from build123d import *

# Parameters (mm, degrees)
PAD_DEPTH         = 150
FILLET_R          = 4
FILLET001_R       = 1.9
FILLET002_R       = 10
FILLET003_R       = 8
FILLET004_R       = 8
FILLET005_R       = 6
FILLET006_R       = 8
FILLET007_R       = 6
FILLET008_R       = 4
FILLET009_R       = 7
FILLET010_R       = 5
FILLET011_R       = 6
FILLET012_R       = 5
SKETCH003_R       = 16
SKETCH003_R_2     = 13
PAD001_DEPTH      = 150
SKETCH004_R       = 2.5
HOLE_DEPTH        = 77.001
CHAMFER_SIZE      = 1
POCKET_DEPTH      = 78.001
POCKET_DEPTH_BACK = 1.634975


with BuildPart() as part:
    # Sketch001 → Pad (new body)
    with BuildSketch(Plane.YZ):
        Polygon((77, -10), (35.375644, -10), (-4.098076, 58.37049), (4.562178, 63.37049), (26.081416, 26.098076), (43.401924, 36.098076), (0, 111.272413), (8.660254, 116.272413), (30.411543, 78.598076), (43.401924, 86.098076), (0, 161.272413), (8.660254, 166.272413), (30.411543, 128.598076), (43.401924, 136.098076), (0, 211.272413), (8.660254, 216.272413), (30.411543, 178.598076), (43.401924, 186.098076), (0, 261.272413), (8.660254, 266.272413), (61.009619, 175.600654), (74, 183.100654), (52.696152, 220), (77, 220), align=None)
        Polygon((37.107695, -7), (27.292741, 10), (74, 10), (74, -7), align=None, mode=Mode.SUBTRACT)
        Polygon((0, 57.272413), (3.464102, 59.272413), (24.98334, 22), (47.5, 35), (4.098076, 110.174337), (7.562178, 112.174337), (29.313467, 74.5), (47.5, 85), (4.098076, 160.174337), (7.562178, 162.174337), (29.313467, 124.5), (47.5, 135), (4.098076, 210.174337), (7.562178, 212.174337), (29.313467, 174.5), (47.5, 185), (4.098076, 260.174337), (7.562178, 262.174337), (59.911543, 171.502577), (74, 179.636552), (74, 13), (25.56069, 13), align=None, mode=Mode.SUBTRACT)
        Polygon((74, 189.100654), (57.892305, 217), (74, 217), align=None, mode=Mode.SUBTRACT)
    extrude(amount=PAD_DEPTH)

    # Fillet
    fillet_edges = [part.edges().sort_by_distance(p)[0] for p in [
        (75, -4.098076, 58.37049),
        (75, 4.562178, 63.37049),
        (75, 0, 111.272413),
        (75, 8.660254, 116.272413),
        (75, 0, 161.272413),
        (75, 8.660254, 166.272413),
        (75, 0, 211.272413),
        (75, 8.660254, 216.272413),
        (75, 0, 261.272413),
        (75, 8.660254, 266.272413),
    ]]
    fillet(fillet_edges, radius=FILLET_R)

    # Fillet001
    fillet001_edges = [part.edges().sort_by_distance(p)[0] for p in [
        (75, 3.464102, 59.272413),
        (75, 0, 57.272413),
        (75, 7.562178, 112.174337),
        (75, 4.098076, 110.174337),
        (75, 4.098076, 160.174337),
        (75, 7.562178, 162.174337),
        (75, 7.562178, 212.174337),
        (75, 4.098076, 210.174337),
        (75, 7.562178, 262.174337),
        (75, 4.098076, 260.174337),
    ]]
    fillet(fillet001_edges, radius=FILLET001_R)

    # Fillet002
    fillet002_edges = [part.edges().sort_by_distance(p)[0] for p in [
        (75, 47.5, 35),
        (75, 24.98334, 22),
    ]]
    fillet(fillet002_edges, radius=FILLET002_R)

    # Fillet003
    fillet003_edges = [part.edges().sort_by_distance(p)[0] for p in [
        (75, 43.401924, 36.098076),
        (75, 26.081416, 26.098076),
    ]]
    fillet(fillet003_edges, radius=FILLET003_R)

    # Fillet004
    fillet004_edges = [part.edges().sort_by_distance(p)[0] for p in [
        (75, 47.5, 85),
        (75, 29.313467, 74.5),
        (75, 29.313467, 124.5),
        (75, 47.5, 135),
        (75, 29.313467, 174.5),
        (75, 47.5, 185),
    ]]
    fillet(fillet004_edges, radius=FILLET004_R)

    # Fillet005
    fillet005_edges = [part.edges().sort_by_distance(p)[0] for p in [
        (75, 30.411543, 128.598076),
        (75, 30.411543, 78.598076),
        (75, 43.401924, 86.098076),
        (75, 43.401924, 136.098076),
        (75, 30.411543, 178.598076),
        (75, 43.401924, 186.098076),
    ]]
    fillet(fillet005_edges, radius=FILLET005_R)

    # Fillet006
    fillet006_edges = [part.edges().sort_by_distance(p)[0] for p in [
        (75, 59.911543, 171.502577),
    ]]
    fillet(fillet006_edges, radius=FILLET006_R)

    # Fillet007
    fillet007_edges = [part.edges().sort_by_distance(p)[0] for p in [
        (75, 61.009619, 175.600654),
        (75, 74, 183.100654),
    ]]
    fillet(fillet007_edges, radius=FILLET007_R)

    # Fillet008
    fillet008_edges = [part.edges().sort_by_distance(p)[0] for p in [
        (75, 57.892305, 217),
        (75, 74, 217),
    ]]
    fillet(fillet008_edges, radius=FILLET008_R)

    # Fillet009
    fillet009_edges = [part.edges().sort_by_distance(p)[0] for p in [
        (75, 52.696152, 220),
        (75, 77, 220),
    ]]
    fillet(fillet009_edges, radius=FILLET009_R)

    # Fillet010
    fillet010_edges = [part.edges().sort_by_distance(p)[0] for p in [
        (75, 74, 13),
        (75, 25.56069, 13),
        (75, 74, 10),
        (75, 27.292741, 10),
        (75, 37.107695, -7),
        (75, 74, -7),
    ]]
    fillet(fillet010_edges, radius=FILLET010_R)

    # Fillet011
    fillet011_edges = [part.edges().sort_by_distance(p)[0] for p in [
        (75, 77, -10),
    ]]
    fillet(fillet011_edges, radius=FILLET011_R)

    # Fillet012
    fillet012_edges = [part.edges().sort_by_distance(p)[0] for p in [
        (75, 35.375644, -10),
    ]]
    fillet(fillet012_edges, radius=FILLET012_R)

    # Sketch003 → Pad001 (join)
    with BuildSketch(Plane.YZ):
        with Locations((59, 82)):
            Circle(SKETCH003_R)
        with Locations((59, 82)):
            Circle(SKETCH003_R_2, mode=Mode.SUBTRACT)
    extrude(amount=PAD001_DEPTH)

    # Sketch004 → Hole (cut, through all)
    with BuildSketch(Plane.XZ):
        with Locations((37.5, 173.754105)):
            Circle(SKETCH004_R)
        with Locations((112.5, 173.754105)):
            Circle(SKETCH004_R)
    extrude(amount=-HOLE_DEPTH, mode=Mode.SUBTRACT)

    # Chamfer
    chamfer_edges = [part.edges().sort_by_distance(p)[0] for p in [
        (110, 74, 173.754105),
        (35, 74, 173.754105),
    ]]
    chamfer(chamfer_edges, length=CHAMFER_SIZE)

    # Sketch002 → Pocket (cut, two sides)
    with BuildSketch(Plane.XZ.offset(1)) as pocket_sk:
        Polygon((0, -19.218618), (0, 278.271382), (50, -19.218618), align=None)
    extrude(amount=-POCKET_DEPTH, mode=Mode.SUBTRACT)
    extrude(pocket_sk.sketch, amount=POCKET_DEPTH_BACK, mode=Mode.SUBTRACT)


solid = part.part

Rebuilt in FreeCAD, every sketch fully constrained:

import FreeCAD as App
import Part
import Sketcher

V = App.Vector
Q = App.Units.Quantity


def edges_at(feature, points):
    """Names of the edges that pass closest to the given points."""
    edges = feature.Shape.Edges
    near = lambda p: min(range(len(edges)), key=lambda i: edges[i].distToShape(Part.Vertex(*p))[0])
    return sorted({f"Edge{near(p) + 1}" for p in points})

doc = App.newDocument("Part")
params = doc.addObject("Spreadsheet::Sheet", "Params")
for row, (alias, value) in enumerate([
    ("sketch1_height", "230 mm"),
    ("sketch1_height2", "17 mm"),
    ("sketch1_length", "15 mm"),
    ("sketch1_length2", "10 mm"),
    ("sketch1_length3", "20 mm"),
    ("pad1_length", "150 mm"),
    ("fillet_radius", "4 mm"),
    ("fillet2_radius", "1.9 mm"),
    ("fillet3_radius", "10 mm"),
    ("fillet4_radius", "8 mm"),
    ("fillet5_radius", "8 mm"),
    ("fillet6_radius", "6 mm"),
    ("fillet7_radius", "8 mm"),
    ("fillet8_radius", "6 mm"),
    ("fillet9_radius", "4 mm"),
    ("fillet10_radius", "7 mm"),
    ("fillet11_radius", "5 mm"),
    ("fillet12_radius", "6 mm"),
    ("fillet13_radius", "5 mm"),
    ("sketch2_diameter", "32 mm"),
    ("sketch2_diameter2", "26 mm"),
    ("pad2_length", "150 mm"),
    ("sketch3_diameter", "5 mm"),
    ("chamfer_size", "1 mm"),
    ("sketch4_width", "50 mm"),
    ("sketch4_height", "297.49 mm"),
], start=1):
    params.set(f"A{row}", alias)
    params.set(f"B{row}", "=" + value)
    params.setAlias(f"B{row}", alias)

body = doc.addObject("PartDesign::Body", "Body")

sketch1 = doc.addObject("Sketcher::SketchObject", "Sketch")
body.addObject(sketch1)
sketch1.AttachmentSupport = (doc.YZ_Plane, [""])
sketch1.MapMode = "FlatFace"
sketch1.addGeometry([
    Part.LineSegment(V(35.375644, -10, 0), V(77, -10, 0)),
    Part.LineSegment(V(77, -10, 0), V(77, 220, 0)),
    Part.LineSegment(V(77, 220, 0), V(52.696152, 220, 0)),
    Part.LineSegment(V(52.696152, 220, 0), V(74, 183.100654, 0)),
    Part.LineSegment(V(74, 183.100654, 0), V(61.009619, 175.600654, 0)),
    Part.LineSegment(V(61.009619, 175.600654, 0), V(8.660254, 266.272413, 0)),
    Part.LineSegment(V(8.660254, 266.272413, 0), V(0, 261.272413, 0)),
    Part.LineSegment(V(0, 261.272413, 0), V(43.401924, 186.098076, 0)),
    Part.LineSegment(V(43.401924, 186.098076, 0), V(30.411543, 178.598076, 0)),
    Part.LineSegment(V(30.411543, 178.598076, 0), V(8.660254, 216.272413, 0)),
    Part.LineSegment(V(8.660254, 216.272413, 0), V(0, 211.272413, 0)),
    Part.LineSegment(V(0, 211.272413, 0), V(43.401924, 136.098076, 0)),
    Part.LineSegment(V(43.401924, 136.098076, 0), V(30.411543, 128.598076, 0)),
    Part.LineSegment(V(30.411543, 128.598076, 0), V(8.660254, 166.272413, 0)),
    Part.LineSegment(V(8.660254, 166.272413, 0), V(0, 161.272413, 0)),
    Part.LineSegment(V(0, 161.272413, 0), V(43.401924, 86.098076, 0)),
    Part.LineSegment(V(43.401924, 86.098076, 0), V(30.411543, 78.598076, 0)),
    Part.LineSegment(V(30.411543, 78.598076, 0), V(8.660254, 116.272413, 0)),
    Part.LineSegment(V(8.660254, 116.272413, 0), V(0, 111.272413, 0)),
    Part.LineSegment(V(0, 111.272413, 0), V(43.401924, 36.098076, 0)),
    Part.LineSegment(V(43.401924, 36.098076, 0), V(26.081416, 26.098076, 0)),
    Part.LineSegment(V(26.081416, 26.098076, 0), V(4.562178, 63.37049, 0)),
    Part.LineSegment(V(4.562178, 63.37049, 0), V(-4.098076, 58.37049, 0)),
    Part.LineSegment(V(-4.098076, 58.37049, 0), V(35.375644, -10, 0)),
    Part.LineSegment(V(37.107695, -7, 0), V(27.292741, 10, 0)),
    Part.LineSegment(V(27.292741, 10, 0), V(74, 10, 0)),
    Part.LineSegment(V(74, 10, 0), V(74, -7, 0)),
    Part.LineSegment(V(74, -7, 0), V(37.107695, -7, 0)),
    Part.LineSegment(V(74, 189.100654, 0), V(57.892305, 217, 0)),
    Part.LineSegment(V(57.892305, 217, 0), V(74, 217, 0)),
    Part.LineSegment(V(74, 217, 0), V(74, 189.100654, 0)),
    Part.LineSegment(V(0, 57.272413, 0), V(3.464102, 59.272413, 0)),
    Part.LineSegment(V(3.464102, 59.272413, 0), V(24.98334, 22, 0)),
    Part.LineSegment(V(24.98334, 22, 0), V(47.5, 35, 0)),
    Part.LineSegment(V(47.5, 35, 0), V(4.098076, 110.174337, 0)),
    Part.LineSegment(V(4.098076, 110.174337, 0), V(7.562178, 112.174337, 0)),
    Part.LineSegment(V(7.562178, 112.174337, 0), V(29.313467, 74.5, 0)),
    Part.LineSegment(V(29.313467, 74.5, 0), V(47.5, 85, 0)),
    Part.LineSegment(V(47.5, 85, 0), V(4.098076, 160.174337, 0)),
    Part.LineSegment(V(4.098076, 160.174337, 0), V(7.562178, 162.174337, 0)),
    Part.LineSegment(V(7.562178, 162.174337, 0), V(29.313467, 124.5, 0)),
    Part.LineSegment(V(29.313467, 124.5, 0), V(47.5, 135, 0)),
    Part.LineSegment(V(47.5, 135, 0), V(4.098076, 210.174337, 0)),
    Part.LineSegment(V(4.098076, 210.174337, 0), V(7.562178, 212.174337, 0)),
    Part.LineSegment(V(7.562178, 212.174337, 0), V(29.313467, 174.5, 0)),
    Part.LineSegment(V(29.313467, 174.5, 0), V(47.5, 185, 0)),
    Part.LineSegment(V(47.5, 185, 0), V(4.098076, 260.174337, 0)),
    Part.LineSegment(V(4.098076, 260.174337, 0), V(7.562178, 262.174337, 0)),
    Part.LineSegment(V(7.562178, 262.174337, 0), V(59.911543, 171.502577, 0)),
    Part.LineSegment(V(59.911543, 171.502577, 0), V(74, 179.636552, 0)),
    Part.LineSegment(V(74, 179.636552, 0), V(74, 13, 0)),
    Part.LineSegment(V(74, 13, 0), V(25.56069, 13, 0)),
    Part.LineSegment(V(25.56069, 13, 0), V(0, 57.272413, 0)),
], False)
sketch1.addConstraint([
    Sketcher.Constraint("Coincident", 0, 2, 1, 1),
    Sketcher.Constraint("Coincident", 1, 2, 2, 1),
    Sketcher.Constraint("Coincident", 2, 2, 3, 1),
    Sketcher.Constraint("Coincident", 3, 2, 4, 1),
    Sketcher.Constraint("Coincident", 4, 2, 5, 1),
    Sketcher.Constraint("Coincident", 5, 2, 6, 1),
    Sketcher.Constraint("Coincident", 6, 2, 7, 1),
    Sketcher.Constraint("Coincident", 7, 2, 8, 1),
    Sketcher.Constraint("Coincident", 8, 2, 9, 1),
    Sketcher.Constraint("Coincident", 9, 2, 10, 1),
    Sketcher.Constraint("Coincident", 10, 2, 11, 1),
    Sketcher.Constraint("Coincident", 11, 2, 12, 1),
    Sketcher.Constraint("Coincident", 12, 2, 13, 1),
    Sketcher.Constraint("Coincident", 13, 2, 14, 1),
    Sketcher.Constraint("Coincident", 14, 2, 15, 1),
    Sketcher.Constraint("Coincident", 15, 2, 16, 1),
    Sketcher.Constraint("Coincident", 16, 2, 17, 1),
    Sketcher.Constraint("Coincident", 17, 2, 18, 1),
    Sketcher.Constraint("Coincident", 18, 2, 19, 1),
    Sketcher.Constraint("Coincident", 19, 2, 20, 1),
    Sketcher.Constraint("Coincident", 20, 2, 21, 1),
    Sketcher.Constraint("Coincident", 21, 2, 22, 1),
    Sketcher.Constraint("Coincident", 22, 2, 23, 1),
    Sketcher.Constraint("Coincident", 23, 2, 0, 1),
    Sketcher.Constraint("Coincident", 24, 2, 25, 1),
    Sketcher.Constraint("Coincident", 25, 2, 26, 1),
    Sketcher.Constraint("Coincident", 26, 2, 27, 1),
    Sketcher.Constraint("Coincident", 27, 2, 24, 1),
    Sketcher.Constraint("Coincident", 28, 2, 29, 1),
    Sketcher.Constraint("Coincident", 29, 2, 30, 1),
    Sketcher.Constraint("Coincident", 30, 2, 28, 1),
    Sketcher.Constraint("Coincident", 31, 2, 32, 1),
    Sketcher.Constraint("Coincident", 32, 2, 33, 1),
    Sketcher.Constraint("Coincident", 33, 2, 34, 1),
    Sketcher.Constraint("Coincident", 34, 2, 35, 1),
    Sketcher.Constraint("Coincident", 35, 2, 36, 1),
    Sketcher.Constraint("Coincident", 36, 2, 37, 1),
    Sketcher.Constraint("Coincident", 37, 2, 38, 1),
    Sketcher.Constraint("Coincident", 38, 2, 39, 1),
    Sketcher.Constraint("Coincident", 39, 2, 40, 1),
    Sketcher.Constraint("Coincident", 40, 2, 41, 1),
    Sketcher.Constraint("Coincident", 41, 2, 42, 1),
    Sketcher.Constraint("Coincident", 42, 2, 43, 1),
    Sketcher.Constraint("Coincident", 43, 2, 44, 1),
    Sketcher.Constraint("Coincident", 44, 2, 45, 1),
    Sketcher.Constraint("Coincident", 45, 2, 46, 1),
    Sketcher.Constraint("Coincident", 46, 2, 47, 1),
    Sketcher.Constraint("Coincident", 47, 2, 48, 1),
    Sketcher.Constraint("Coincident", 48, 2, 49, 1),
    Sketcher.Constraint("Coincident", 49, 2, 50, 1),
    Sketcher.Constraint("Coincident", 50, 2, 51, 1),
    Sketcher.Constraint("Coincident", 51, 2, 52, 1),
    Sketcher.Constraint("Coincident", 52, 2, 31, 1),
    Sketcher.Constraint("Horizontal", 0),
    Sketcher.Constraint("Vertical", 1),
    Sketcher.Constraint("Horizontal", 2),
    Sketcher.Constraint("Horizontal", 25),
    Sketcher.Constraint("Vertical", 26),
    Sketcher.Constraint("Horizontal", 27),
    Sketcher.Constraint("Horizontal", 29),
    Sketcher.Constraint("Vertical", 30),
    Sketcher.Constraint("Vertical", 50),
    Sketcher.Constraint("Horizontal", 51),
    Sketcher.Constraint("PointOnObject", 6, 2, -2),
    Sketcher.Constraint("PointOnObject", 10, 2, -2),
    Sketcher.Constraint("PointOnObject", 14, 2, -2),
    Sketcher.Constraint("PointOnObject", 18, 2, -2),
    Sketcher.Constraint("PointOnObject", 52, 2, -2),
    Sketcher.Constraint("Perpendicular", 3, 4),
    Sketcher.Constraint("Perpendicular", 4, 5),
    Sketcher.Constraint("Perpendicular", 5, 6),
    Sketcher.Constraint("Perpendicular", 6, 7),
    Sketcher.Constraint("Perpendicular", 7, 8),
    Sketcher.Constraint("Perpendicular", 8, 9),
    Sketcher.Constraint("Perpendicular", 9, 10),
    Sketcher.Constraint("Perpendicular", 10, 11),
    Sketcher.Constraint("Perpendicular", 11, 12),
    Sketcher.Constraint("Perpendicular", 12, 13),
    Sketcher.Constraint("Perpendicular", 13, 14),
    Sketcher.Constraint("Perpendicular", 14, 15),
    Sketcher.Constraint("Perpendicular", 15, 16),
    Sketcher.Constraint("Perpendicular", 16, 17),
    Sketcher.Constraint("Perpendicular", 17, 18),
    Sketcher.Constraint("Perpendicular", 18, 19),
    Sketcher.Constraint("Perpendicular", 19, 20),
    Sketcher.Constraint("Perpendicular", 20, 21),
    Sketcher.Constraint("Perpendicular", 21, 22),
    Sketcher.Constraint("Perpendicular", 22, 23),
    Sketcher.Constraint("Parallel", 23, 24),
    Sketcher.Constraint("Parallel", 24, 28),
    Sketcher.Constraint("Perpendicular", 28, 31),
    Sketcher.Constraint("Perpendicular", 31, 32),
    Sketcher.Constraint("Perpendicular", 32, 33),
    Sketcher.Constraint("Perpendicular", 33, 34),
    Sketcher.Constraint("Perpendicular", 34, 35),
    Sketcher.Constraint("Perpendicular", 35, 36),
    Sketcher.Constraint("Perpendicular", 36, 37),
    Sketcher.Constraint("Perpendicular", 37, 38),
    Sketcher.Constraint("Perpendicular", 38, 39),
    Sketcher.Constraint("Perpendicular", 39, 40),
    Sketcher.Constraint("Perpendicular", 40, 41),
    Sketcher.Constraint("Perpendicular", 41, 42),
    Sketcher.Constraint("Perpendicular", 42, 43),
    Sketcher.Constraint("Perpendicular", 43, 44),
    Sketcher.Constraint("Perpendicular", 44, 45),
    Sketcher.Constraint("Perpendicular", 45, 46),
    Sketcher.Constraint("Perpendicular", 46, 47),
    Sketcher.Constraint("Perpendicular", 47, 48),
    Sketcher.Constraint("Perpendicular", 48, 49),
    Sketcher.Constraint("Perpendicular", 49, 52),
    Sketcher.Constraint("Vertical", 5, 2, 9, 2),
    Sketcher.Constraint("Vertical", 7, 2, 11, 2),
    Sketcher.Constraint("Vertical", 8, 2, 12, 2),
    Sketcher.Constraint("Vertical", 9, 2, 13, 2),
    Sketcher.Constraint("Vertical", 11, 2, 15, 2),
    Sketcher.Constraint("Vertical", 12, 2, 16, 2),
    Sketcher.Constraint("Vertical", 13, 2, 17, 2),
    Sketcher.Constraint("Vertical", 15, 2, 19, 2),
    Sketcher.Constraint("Vertical", 3, 2, 25, 2),
    Sketcher.Constraint("Vertical", 26, 2, 29, 2),
    Sketcher.Constraint("Vertical", 33, 2, 37, 2),
    Sketcher.Constraint("Vertical", 34, 2, 38, 2),
    Sketcher.Constraint("Vertical", 35, 2, 39, 2),
    Sketcher.Constraint("Vertical", 36, 2, 40, 2),
    Sketcher.Constraint("Vertical", 37, 2, 41, 2),
    Sketcher.Constraint("Vertical", 38, 2, 42, 2),
    Sketcher.Constraint("Vertical", 39, 2, 43, 2),
    Sketcher.Constraint("Vertical", 40, 2, 44, 2),
    Sketcher.Constraint("Vertical", 41, 2, 45, 2),
    Sketcher.Constraint("Vertical", 42, 2, 46, 2),
    Sketcher.Constraint("Vertical", 43, 2, 47, 2),
    Sketcher.Constraint("Vertical", 30, 2, 49, 2),
    Sketcher.Constraint("Equal", 4, 8),
    Sketcher.Constraint("Equal", 18, 22),
    Sketcher.Constraint("Equal", 21, 32),
    Sketcher.Constraint("Equal", 19, 34),
    Sketcher.Constraint("Equal", 31, 35),
    Sketcher.Constraint("Equal", 17, 36),
    Sketcher.Constraint("Equal", 5, 48),
    Sketcher.Constraint("DistanceY", 1, 1, 1, 2, Q("230 mm")),
    Sketcher.Constraint("DistanceY", 26, 2, 26, 1, Q("17 mm")),
    Sketcher.Constraint("Angle", 3, Q("-59.999999 deg")),
    Sketcher.Constraint("Distance", 4, Q("15 mm")),
    Sketcher.Constraint("Distance", 6, Q("10 mm")),
    Sketcher.Constraint("Distance", 20, Q("20 mm")),
    Sketcher.Constraint("Distance", 31, Q("4 mm")),
    Sketcher.Constraint("Distance", 33, Q("26 mm")),
    Sketcher.Constraint("DistanceX", -1, 1, 0, 2, Q("77 mm")),
    Sketcher.Constraint("DistanceY", 0, 2, -1, 1, Q("10 mm")),
    Sketcher.Constraint("DistanceX", -1, 1, 3, 2, Q("74 mm")),
    Sketcher.Constraint("DistanceY", -1, 1, 24, 2, Q("10 mm")),
    Sketcher.Constraint("DistanceY", -1, 1, 28, 2, Q("217 mm")),
    Sketcher.Constraint("DistanceY", -1, 1, 32, 2, Q("22 mm")),
    Sketcher.Constraint("DistanceY", -1, 1, 50, 2, Q("13 mm")),
    Sketcher.Constraint("DistanceY", 3, 2, 30, 2, Q("6 mm")),
    Sketcher.Constraint("DistanceX", -1, 1, 33, 2, Q("47.5 mm")),
    Sketcher.Constraint("DistanceX", 2, 2, 2, 1, Q("24.303848 mm")),
    Sketcher.Constraint("DistanceX", 25, 1, 25, 2, Q("46.707259 mm")),
    Sketcher.Constraint("DistanceY", 50, 2, 50, 1, Q("166.636552 mm")),
])
sketch1.setExpression("Constraints[139]", "Params.sketch1_height")
sketch1.setExpression("Constraints[140]", "Params.sketch1_height2")
sketch1.setExpression("Constraints[142]", "Params.sketch1_length")
sketch1.setExpression("Constraints[143]", "Params.sketch1_length2")
sketch1.setExpression("Constraints[144]", "Params.sketch1_length3")
pad1 = doc.addObject("PartDesign::Pad", "Pad")
body.addObject(pad1)
pad1.Profile = sketch1
pad1.setExpression("Length", "Params.pad1_length")
doc.recompute()

fillet = doc.addObject("PartDesign::Fillet", "Fillet")
body.addObject(fillet)
fillet.Base = (pad1, edges_at(pad1, [
    (75, -4.098, 58.37),
    (75, 4.562, 63.37),
    (75, 0, 111.272),
    (75, 8.66, 116.272),
    (75, 0, 161.272),
    (75, 8.66, 166.272),
    (75, 0, 211.272),
    (75, 8.66, 216.272),
    (75, 0, 261.272),
    (75, 8.66, 266.272),
]))
fillet.setExpression("Radius", "Params.fillet_radius")
doc.recompute()

fillet2 = doc.addObject("PartDesign::Fillet", "Fillet001")
body.addObject(fillet2)
fillet2.Base = (fillet, edges_at(fillet, [
    (75, 3.464, 59.272),
    (75, 0, 57.272),
    (75, 7.562, 112.174),
    (75, 4.098, 110.174),
    (75, 4.098, 160.174),
    (75, 7.562, 162.174),
    (75, 7.562, 212.174),
    (75, 4.098, 210.174),
    (75, 7.562, 262.174),
    (75, 4.098, 260.174),
]))
fillet2.setExpression("Radius", "Params.fillet2_radius")
doc.recompute()

fillet3 = doc.addObject("PartDesign::Fillet", "Fillet002")
body.addObject(fillet3)
fillet3.Base = (fillet2, edges_at(fillet2, [(75, 47.5, 35), (75, 24.983, 22)]))
fillet3.setExpression("Radius", "Params.fillet3_radius")
doc.recompute()

fillet4 = doc.addObject("PartDesign::Fillet", "Fillet003")
body.addObject(fillet4)
fillet4.Base = (fillet3, edges_at(fillet3, [(75, 43.402, 36.098), (75, 26.081, 26.098)]))
fillet4.setExpression("Radius", "Params.fillet4_radius")
doc.recompute()

fillet5 = doc.addObject("PartDesign::Fillet", "Fillet004")
body.addObject(fillet5)
fillet5.Base = (fillet4, edges_at(fillet4, [
    (75, 47.5, 85),
    (75, 29.313, 74.5),
    (75, 29.313, 124.5),
    (75, 47.5, 135),
    (75, 29.313, 174.5),
    (75, 47.5, 185),
]))
fillet5.setExpression("Radius", "Params.fillet5_radius")
doc.recompute()

fillet6 = doc.addObject("PartDesign::Fillet", "Fillet005")
body.addObject(fillet6)
fillet6.Base = (fillet5, edges_at(fillet5, [
    (75, 30.412, 128.598),
    (75, 30.412, 78.598),
    (75, 43.402, 86.098),
    (75, 43.402, 136.098),
    (75, 30.412, 178.598),
    (75, 43.402, 186.098),
]))
fillet6.setExpression("Radius", "Params.fillet6_radius")
doc.recompute()

fillet7 = doc.addObject("PartDesign::Fillet", "Fillet006")
body.addObject(fillet7)
fillet7.Base = (fillet6, edges_at(fillet6, [(75, 59.912, 171.503)]))
fillet7.setExpression("Radius", "Params.fillet7_radius")
doc.recompute()

fillet8 = doc.addObject("PartDesign::Fillet", "Fillet007")
body.addObject(fillet8)
fillet8.Base = (fillet7, edges_at(fillet7, [(75, 61.01, 175.601), (75, 74, 183.101)]))
fillet8.setExpression("Radius", "Params.fillet8_radius")
doc.recompute()

fillet9 = doc.addObject("PartDesign::Fillet", "Fillet008")
body.addObject(fillet9)
fillet9.Base = (fillet8, edges_at(fillet8, [(75, 57.892, 217), (75, 74, 217)]))
fillet9.setExpression("Radius", "Params.fillet9_radius")
doc.recompute()

fillet10 = doc.addObject("PartDesign::Fillet", "Fillet009")
body.addObject(fillet10)
fillet10.Base = (fillet9, edges_at(fillet9, [(75, 52.696, 220), (75, 77, 220)]))
fillet10.setExpression("Radius", "Params.fillet10_radius")
doc.recompute()

fillet11 = doc.addObject("PartDesign::Fillet", "Fillet010")
body.addObject(fillet11)
fillet11.Base = (fillet10, edges_at(fillet10, [
    (75, 74, 13),
    (75, 25.561, 13),
    (75, 74, 10),
    (75, 27.293, 10),
    (75, 37.108, -7),
    (75, 74, -7),
]))
fillet11.setExpression("Radius", "Params.fillet11_radius")
doc.recompute()

fillet12 = doc.addObject("PartDesign::Fillet", "Fillet011")
body.addObject(fillet12)
fillet12.Base = (fillet11, edges_at(fillet11, [(75, 77, -10)]))
fillet12.setExpression("Radius", "Params.fillet12_radius")
doc.recompute()

fillet13 = doc.addObject("PartDesign::Fillet", "Fillet012")
body.addObject(fillet13)
fillet13.Base = (fillet12, edges_at(fillet12, [(75, 35.376, -10)]))
fillet13.setExpression("Radius", "Params.fillet13_radius")

sketch2 = doc.addObject("Sketcher::SketchObject", "Sketch001")
body.addObject(sketch2)
sketch2.AttachmentSupport = (doc.YZ_Plane, [""])
sketch2.MapMode = "FlatFace"
sketch2.addGeometry([
    Part.Circle(V(59, 82, 0), V(0, 0, 1), 16),
    Part.Circle(V(59, 82, 0), V(0, 0, 1), 13),
], False)
sketch2.addConstraint([
    Sketcher.Constraint("Coincident", 1, 3, 0, 3),
    Sketcher.Constraint("Diameter", 0, Q("32 mm")),
    Sketcher.Constraint("Diameter", 1, Q("26 mm")),
    Sketcher.Constraint("DistanceX", -1, 1, 0, 3, Q("59 mm")),
    Sketcher.Constraint("DistanceY", -1, 1, 0, 3, Q("82 mm")),
])
sketch2.setExpression("Constraints[1]", "Params.sketch2_diameter")
sketch2.setExpression("Constraints[2]", "Params.sketch2_diameter2")
pad2 = doc.addObject("PartDesign::Pad", "Pad001")
body.addObject(pad2)
pad2.Profile = sketch2
pad2.setExpression("Length", "Params.pad2_length")

sketch3 = doc.addObject("Sketcher::SketchObject", "Sketch002")
body.addObject(sketch3)
sketch3.AttachmentSupport = (doc.XZ_Plane, [""])
sketch3.MapMode = "FlatFace"
sketch3.addGeometry([
    Part.Circle(V(37.5, 173.754105, 0), V(0, 0, 1), 2.5),
    Part.Circle(V(112.5, 173.754105, 0), V(0, 0, 1), 2.5),
], False)
sketch3.addConstraint([
    Sketcher.Constraint("Equal", 0, 1),
    Sketcher.Constraint("Horizontal", 0, 3, 1, 3),
    Sketcher.Constraint("Diameter", 0, Q("5 mm")),
    Sketcher.Constraint("DistanceX", 0, 3, 1, 3, Q("75 mm")),
    Sketcher.Constraint("DistanceX", -1, 1, 0, 3, Q("37.5 mm")),
    Sketcher.Constraint("DistanceY", -1, 1, 0, 3, Q("173.754105 mm")),
])
sketch3.setExpression("Constraints[2]", "Params.sketch3_diameter")
pocket1 = doc.addObject("PartDesign::Pocket", "Pocket")
body.addObject(pocket1)
pocket1.Profile = sketch3
pocket1.Type = "ThroughAll"
doc.recompute()

chamfer = doc.addObject("PartDesign::Chamfer", "Chamfer")
body.addObject(chamfer)
chamfer.Base = (pocket1, edges_at(pocket1, [(110, 74, 173.754), (35, 74, 173.754)]))
chamfer.setExpression("Size", "Params.chamfer_size")

sketch4 = doc.addObject("Sketcher::SketchObject", "Sketch003")
body.addObject(sketch4)
sketch4.AttachmentSupport = (doc.XZ_Plane, [""])
sketch4.MapMode = "FlatFace"
sketch4.AttachmentOffset = App.Placement(V(0, 0, 1), App.Rotation())
sketch4.addGeometry([
    Part.LineSegment(V(0, 278.271382, 0), V(0, -19.218618, 0)),
    Part.LineSegment(V(0, -19.218618, 0), V(50, -19.218618, 0)),
    Part.LineSegment(V(50, -19.218618, 0), V(0, 278.271382, 0)),
], False)
sketch4.addConstraint([
    Sketcher.Constraint("Coincident", 0, 2, 1, 1),
    Sketcher.Constraint("Coincident", 1, 2, 2, 1),
    Sketcher.Constraint("Coincident", 2, 2, 0, 1),
    Sketcher.Constraint("Vertical", 0),
    Sketcher.Constraint("Horizontal", 1),
    Sketcher.Constraint("PointOnObject", 0, 2, -2),
    Sketcher.Constraint("DistanceX", 1, 1, 1, 2, Q("50 mm")),
    Sketcher.Constraint("DistanceY", 0, 2, 0, 1, Q("297.49 mm")),
    Sketcher.Constraint("DistanceY", -1, 1, 2, 2, Q("278.271382 mm")),
])
sketch4.setExpression("Constraints[6]", "Params.sketch4_width")
sketch4.setExpression("Constraints[7]", "Params.sketch4_height")
pocket2 = doc.addObject("PartDesign::Pocket", "Pocket001")
body.addObject(pocket2)
pocket2.Profile = sketch4
pocket2.Type = "ThroughAll"
pocket2.Midplane = True

doc.recompute()
